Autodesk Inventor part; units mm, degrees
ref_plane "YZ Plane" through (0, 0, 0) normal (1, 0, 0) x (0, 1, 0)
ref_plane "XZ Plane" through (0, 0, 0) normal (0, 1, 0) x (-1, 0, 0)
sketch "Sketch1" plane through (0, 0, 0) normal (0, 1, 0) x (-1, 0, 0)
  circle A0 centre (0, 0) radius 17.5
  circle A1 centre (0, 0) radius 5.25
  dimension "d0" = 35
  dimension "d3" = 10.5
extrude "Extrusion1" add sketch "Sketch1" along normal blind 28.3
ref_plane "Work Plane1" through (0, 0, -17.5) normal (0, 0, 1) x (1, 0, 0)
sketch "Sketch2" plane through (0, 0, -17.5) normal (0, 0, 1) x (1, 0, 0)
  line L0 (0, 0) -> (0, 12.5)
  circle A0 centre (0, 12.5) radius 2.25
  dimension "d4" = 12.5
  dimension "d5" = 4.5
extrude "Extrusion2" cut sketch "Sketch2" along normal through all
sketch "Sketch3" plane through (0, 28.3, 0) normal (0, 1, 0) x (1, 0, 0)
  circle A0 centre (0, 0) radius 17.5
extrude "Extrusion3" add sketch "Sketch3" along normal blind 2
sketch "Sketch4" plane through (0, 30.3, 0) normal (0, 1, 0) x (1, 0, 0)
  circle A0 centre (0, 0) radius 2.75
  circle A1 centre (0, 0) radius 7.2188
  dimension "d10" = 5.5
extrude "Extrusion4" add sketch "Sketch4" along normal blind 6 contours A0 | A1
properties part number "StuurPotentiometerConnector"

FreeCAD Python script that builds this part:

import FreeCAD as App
import Part
import Sketcher
from FreeCAD import Vector

doc = App.newDocument("Part")
body = doc.addObject("PartDesign::Body", "Body")

# Sketch on XZ plane
sketch1 = doc.addObject("Sketcher::SketchObject", "Sketch")
body.addObject(sketch1)
sketch1.AttachmentSupport = (doc.XZ_Plane, [""])
sketch1.MapMode = "FlatFace"
sketch1.addGeometry([
    Part.Circle(Vector(0, 0, 0), Vector(0, 0, 1), 18),
    Part.Circle(Vector(0, 0, 0), Vector(0, 0, 1), 5),
], False)
sketch1.addConstraint([
    Sketcher.Constraint("Coincident", 0, 3, -1, 1),
    Sketcher.Constraint("Coincident", 1, 3, -1, 1),
    Sketcher.Constraint("Diameter", 0, 35.0),
    Sketcher.Constraint("Diameter", 1, 10.5),
])
pad1 = doc.addObject("PartDesign::Pad", "Pad")
body.addObject(pad1)
pad1.Profile = sketch1
pad1.Length = 28.3
pad1.Reversed = True

# Sketch on XY plane
sketch2 = doc.addObject("Sketcher::SketchObject", "Sketch001")
body.addObject(sketch2)
sketch2.AttachmentSupport = (doc.XY_Plane, [""])
sketch2.MapMode = "FlatFace"
sketch2.AttachmentOffset = App.Placement(Vector(0, 0, -17.5), App.Rotation())
sketch2.addGeometry(Part.Circle(Vector(0, 12.5, 0), Vector(0, 0, 1), 2.2), False)
sketch2.addConstraint([
    Sketcher.Constraint("PointOnObject", 0, 3, -2),
    Sketcher.Constraint("Diameter", 0, 4.5),
    Sketcher.Constraint("DistanceY", -1, 1, 0, 3, 12.5),
])
pocket1 = doc.addObject("PartDesign::Pocket", "Pocket")
body.addObject(pocket1)
pocket1.Profile = sketch2
pocket1.Type = "ThroughAll"
pocket1.Reversed = True

# Sketch on XZ plane
sketch3 = doc.addObject("Sketcher::SketchObject", "Sketch002")
body.addObject(sketch3)
sketch3.AttachmentSupport = (doc.XZ_Plane, [""])
sketch3.MapMode = "FlatFace"
sketch3.AttachmentOffset = App.Placement(Vector(0, 0, -28.3), App.Rotation())
sketch3.addGeometry(Part.Circle(Vector(0, 0, 0), Vector(0, 0, 1), 18), False)
sketch3.addConstraint([
    Sketcher.Constraint("Coincident", 0, 3, -1, 1),
    Sketcher.Constraint("Diameter", 0, 35.0),
])
pad2 = doc.addObject("PartDesign::Pad", "Pad001")
body.addObject(pad2)
pad2.Profile = sketch3
pad2.Length = 2
pad2.Reversed = True

# Sketch on XZ plane
sketch4 = doc.addObject("Sketcher::SketchObject", "Sketch003")
body.addObject(sketch4)
sketch4.AttachmentSupport = (doc.XZ_Plane, [""])
sketch4.MapMode = "FlatFace"
sketch4.AttachmentOffset = App.Placement(Vector(0, 0, -30.3), App.Rotation())
sketch4.addGeometry(Part.Circle(Vector(0, 0, 0), Vector(0, 0, 1), 7), False)
sketch4.addConstraint([
    Sketcher.Constraint("Coincident", 0, 3, -1, 1),
    Sketcher.Constraint("Diameter", 0, 14.4376),
])
pad3 = doc.addObject("PartDesign::Pad", "Pad002")
body.addObject(pad3)
pad3.Profile = sketch4
pad3.Length = 6
pad3.Reversed = True

doc.recompute()
